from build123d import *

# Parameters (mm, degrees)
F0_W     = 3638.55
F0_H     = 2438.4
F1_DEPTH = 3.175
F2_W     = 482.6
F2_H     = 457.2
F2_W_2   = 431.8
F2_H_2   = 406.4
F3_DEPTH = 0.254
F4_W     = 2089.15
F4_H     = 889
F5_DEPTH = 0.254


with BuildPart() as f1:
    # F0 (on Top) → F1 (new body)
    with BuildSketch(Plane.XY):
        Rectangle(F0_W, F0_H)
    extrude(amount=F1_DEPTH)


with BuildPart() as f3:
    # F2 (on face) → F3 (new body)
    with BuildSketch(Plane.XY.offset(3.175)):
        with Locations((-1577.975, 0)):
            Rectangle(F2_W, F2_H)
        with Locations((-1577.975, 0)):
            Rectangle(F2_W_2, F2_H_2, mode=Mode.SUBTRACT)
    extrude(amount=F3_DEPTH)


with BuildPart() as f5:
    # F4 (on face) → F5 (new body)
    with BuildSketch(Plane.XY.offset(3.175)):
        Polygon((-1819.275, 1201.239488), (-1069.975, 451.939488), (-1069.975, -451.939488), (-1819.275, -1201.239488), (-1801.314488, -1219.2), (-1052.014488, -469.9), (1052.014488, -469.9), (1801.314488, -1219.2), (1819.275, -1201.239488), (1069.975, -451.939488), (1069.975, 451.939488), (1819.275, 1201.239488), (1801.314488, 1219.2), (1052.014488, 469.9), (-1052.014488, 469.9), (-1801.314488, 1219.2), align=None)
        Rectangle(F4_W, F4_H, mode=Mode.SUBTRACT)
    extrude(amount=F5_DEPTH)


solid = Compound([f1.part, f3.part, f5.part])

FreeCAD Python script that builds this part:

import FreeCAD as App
import Part
import Sketcher
from FreeCAD import Vector
Q = App.Units.Quantity

doc = App.newDocument("Part")
params = doc.addObject("Spreadsheet::Sheet", "Params")
for row, (alias, value) in enumerate([
    ("sketch1_height", "96 in"),
    ("sketch1_width", "143.25 in"),
    ("pad1_length", "0.125 in"),
    ("sketch2_width", "19 in"),
    ("sketch2_width2", "17 in"),
    ("sketch2_height", "18 in"),
    ("sketch2_height2", "16 in"),
    ("pad2_length", "0.01 in"),
    ("sketch3_height", "35 in"),
    ("sketch3_length", "1 in"),
    ("sketch3_width", "82.25 in"),
    ("pad3_length", "0.01 in"),
], start=1):
    params.set(f"A{row}", alias)
    params.set(f"B{row}", "=" + value)
    params.setAlias(f"B{row}", alias)

body = doc.addObject("PartDesign::Body", "Body")

# Sketch on XY plane
sketch1 = doc.addObject("Sketcher::SketchObject", "Sketch")
body.addObject(sketch1)
sketch1.AttachmentSupport = (doc.XY_Plane, [""])
sketch1.MapMode = "FlatFace"
sketch1.addGeometry(Part.LineSegment(Vector(-1819.275, 1219.2, 0), Vector(-1819.275, -1219.2, 0)), False)
sketch1.addGeometry(Part.LineSegment(Vector(-1819.275, -1219.2, 0), Vector(1819.275, -1219.2, 0)), False)
sketch1.addGeometry(Part.LineSegment(Vector(1819.275, -1219.2, 0), Vector(1819.275, 1219.2, 0)), False)
sketch1.addGeometry(Part.LineSegment(Vector(1819.275, 1219.2, 0), Vector(-1819.275, 1219.2, 0)), False)
sketch1.addConstraint(Sketcher.Constraint("Coincident", 0, 2, 1, 1))
sketch1.addConstraint(Sketcher.Constraint("Coincident", 1, 2, 2, 1))
sketch1.addConstraint(Sketcher.Constraint("Coincident", 2, 2, 3, 1))
sketch1.addConstraint(Sketcher.Constraint("Coincident", 3, 2, 0, 1))
sketch1.addConstraint(Sketcher.Constraint("Vertical", 0))
sketch1.addConstraint(Sketcher.Constraint("Horizontal", 1))
sketch1.addConstraint(Sketcher.Constraint("Vertical", 2))
sketch1.addConstraint(Sketcher.Constraint("Horizontal", 3))
sketch1.addConstraint(Sketcher.Constraint("Symmetric", 0, 2, 2, 2, -1, 1))
sketch1.addConstraint(Sketcher.Constraint("DistanceY", 0, 2, 0, 1, Q("96 in")))
sketch1.addConstraint(Sketcher.Constraint("DistanceX", 1, 1, 1, 2, Q("143.25 in")))
sketch1.setExpression("Constraints[9]", "Params.sketch1_height")
sketch1.setExpression("Constraints[10]", "Params.sketch1_width")
pad1 = doc.addObject("PartDesign::Pad", "Pad")
body.addObject(pad1)
pad1.Profile = sketch1
pad1.setExpression("Length", "Params.pad1_length")
body2 = doc.addObject("PartDesign::Body", "Body001")

# Sketch on XY plane
sketch2 = doc.addObject("Sketcher::SketchObject", "Sketch001")
body2.addObject(sketch2)
sketch2.AttachmentSupport = (doc.getObject("XY_Plane001"), [""])
sketch2.MapMode = "FlatFace"
sketch2.AttachmentOffset = App.Placement(Vector(0, 0, 0.125 * 25.4), App.Rotation())
sketch2.addGeometry(Part.LineSegment(Vector(-1819.275, 228.6, 0), Vector(-1819.275, -228.6, 0)), False)
sketch2.addGeometry(Part.LineSegment(Vector(-1819.275, -228.6, 0), Vector(-1336.675, -228.6, 0)), False)
sketch2.addGeometry(Part.LineSegment(Vector(-1336.675, -228.6, 0), Vector(-1336.675, 228.6, 0)), False)
sketch2.addGeometry(Part.LineSegment(Vector(-1336.675, 228.6, 0), Vector(-1819.275, 228.6, 0)), False)
sketch2.addGeometry(Part.LineSegment(Vector(-1362.075, -203.2, 0), Vector(-1793.875, -203.2, 0)), False)
sketch2.addGeometry(Part.LineSegment(Vector(-1793.875, -203.2, 0), Vector(-1793.875, 203.2, 0)), False)
sketch2.addGeometry(Part.LineSegment(Vector(-1793.875, 203.2, 0), Vector(-1362.075, 203.2, 0)), False)
sketch2.addGeometry(Part.LineSegment(Vector(-1362.075, 203.2, 0), Vector(-1362.075, -203.2, 0)), False)
sketch2.addConstraint(Sketcher.Constraint("Coincident", 0, 2, 1, 1))
sketch2.addConstraint(Sketcher.Constraint("Coincident", 1, 2, 2, 1))
sketch2.addConstraint(Sketcher.Constraint("Coincident", 2, 2, 3, 1))
sketch2.addConstraint(Sketcher.Constraint("Coincident", 3, 2, 0, 1))
sketch2.addConstraint(Sketcher.Constraint("Coincident", 4, 2, 5, 1))
sketch2.addConstraint(Sketcher.Constraint("Coincident", 5, 2, 6, 1))
sketch2.addConstraint(Sketcher.Constraint("Coincident", 6, 2, 7, 1))
sketch2.addConstraint(Sketcher.Constraint("Coincident", 7, 2, 4, 1))
sketch2.addConstraint(Sketcher.Constraint("Vertical", 0))
sketch2.addConstraint(Sketcher.Constraint("Horizontal", 1))
sketch2.addConstraint(Sketcher.Constraint("Vertical", 2))
sketch2.addConstraint(Sketcher.Constraint("Horizontal", 3))
sketch2.addConstraint(Sketcher.Constraint("Horizontal", 4))
sketch2.addConstraint(Sketcher.Constraint("Vertical", 5))
sketch2.addConstraint(Sketcher.Constraint("Horizontal", 6))
sketch2.addConstraint(Sketcher.Constraint("Vertical", 7))
sketch2.addConstraint(Sketcher.Constraint("DistanceX", 1, 1, 1, 2, Q("19 in")))
sketch2.addConstraint(Sketcher.Constraint("DistanceX", 4, 2, 4, 1, Q("17 in")))
sketch2.addConstraint(Sketcher.Constraint("DistanceY", 0, 2, 0, 1, Q("18 in")))
sketch2.addConstraint(Sketcher.Constraint("DistanceY", 5, 1, 5, 2, Q("16 in")))
sketch2.addConstraint(Sketcher.Constraint("DistanceY", 0, 2, -1, 1, Q("9 in")))
sketch2.addConstraint(Sketcher.Constraint("DistanceY", 4, 2, -1, 1, Q("8 in")))
sketch2.addConstraint(Sketcher.Constraint("DistanceX", 0, 2, 4, 2, Q("1 in")))
sketch2.addConstraint(Sketcher.Constraint("DistanceX", 0, 2, -1, 1, Q("71.625 in")))
sketch2.setExpression("Constraints[16]", "Params.sketch2_width")
sketch2.setExpression("Constraints[17]", "Params.sketch2_width2")
sketch2.setExpression("Constraints[18]", "Params.sketch2_height")
sketch2.setExpression("Constraints[19]", "Params.sketch2_height2")
pad2 = doc.addObject("PartDesign::Pad", "Pad001")
body2.addObject(pad2)
pad2.Profile = sketch2
pad2.setExpression("Length", "Params.pad2_length")
body3 = doc.addObject("PartDesign::Body", "Body002")

# Sketch on XY plane
sketch3 = doc.addObject("Sketcher::SketchObject", "Sketch002")
body3.addObject(sketch3)
sketch3.AttachmentSupport = (doc.getObject("XY_Plane002"), [""])
sketch3.MapMode = "FlatFace"
sketch3.AttachmentOffset = App.Placement(Vector(0, 0, 0.125 * 25.4), App.Rotation())
sketch3.addGeometry(Part.LineSegment(Vector(-1819.275, 1201.239488, 0), Vector(-1069.975, 451.939488, 0)), False)
sketch3.addGeometry(Part.LineSegment(Vector(-1069.975, 451.939488, 0), Vector(-1069.975, -451.939488, 0)), False)
sketch3.addGeometry(Part.LineSegment(Vector(-1069.975, -451.939488, 0), Vector(-1819.275, -1201.239488, 0)), False)
sketch3.addGeometry(Part.LineSegment(Vector(-1819.275, -1201.239488, 0), Vector(-1801.314488, -1219.2, 0)), False)
sketch3.addGeometry(Part.LineSegment(Vector(-1801.314488, -1219.2, 0), Vector(-1052.014488, -469.9, 0)), False)
sketch3.addGeometry(Part.LineSegment(Vector(-1052.014488, -469.9, 0), Vector(1052.014488, -469.9, 0)), False)
sketch3.addGeometry(Part.LineSegment(Vector(1052.014488, -469.9, 0), Vector(1801.314488, -1219.2, 0)), False)
sketch3.addGeometry(Part.LineSegment(Vector(1801.314488, -1219.2, 0), Vector(1819.275, -1201.239488, 0)), False)
sketch3.addGeometry(Part.LineSegment(Vector(1819.275, -1201.239488, 0), Vector(1069.975, -451.939488, 0)), False)
sketch3.addGeometry(Part.LineSegment(Vector(1069.975, -451.939488, 0), Vector(1069.975, 451.939488, 0)), False)
sketch3.addGeometry(Part.LineSegment(Vector(1069.975, 451.939488, 0), Vector(1819.275, 1201.239488, 0)), False)
sketch3.addGeometry(Part.LineSegment(Vector(1819.275, 1201.239488, 0), Vector(1801.314488, 1219.2, 0)), False)
sketch3.addGeometry(Part.LineSegment(Vector(1801.314488, 1219.2, 0), Vector(1052.014488, 469.9, 0)), False)
sketch3.addGeometry(Part.LineSegment(Vector(1052.014488, 469.9, 0), Vector(-1052.014488, 469.9, 0)), False)
sketch3.addGeometry(Part.LineSegment(Vector(-1052.014488, 469.9, 0), Vector(-1801.314488, 1219.2, 0)), False)
sketch3.addGeometry(Part.LineSegment(Vector(-1801.314488, 1219.2, 0), Vector(-1819.275, 1201.239488, 0)), False)
sketch3.addGeometry(Part.LineSegment(Vector(1044.575, -444.5, 0), Vector(-1044.575, -444.5, 0)), False)
sketch3.addGeometry(Part.LineSegment(Vector(-1044.575, -444.5, 0), Vector(-1044.575, 444.5, 0)), False)
sketch3.addGeometry(Part.LineSegment(Vector(-1044.575, 444.5, 0), Vector(1044.575, 444.5, 0)), False)
sketch3.addGeometry(Part.LineSegment(Vector(1044.575, 444.5, 0), Vector(1044.575, -444.5, 0)), False)
sketch3.addConstraint(Sketcher.Constraint("Coincident", 0, 2, 1, 1))
sketch3.addConstraint(Sketcher.Constraint("Coincident", 1, 2, 2, 1))
sketch3.addConstraint(Sketcher.Constraint("Coincident", 2, 2, 3, 1))
sketch3.addConstraint(Sketcher.Constraint("Coincident", 3, 2, 4, 1))
sketch3.addConstraint(Sketcher.Constraint("Coincident", 4, 2, 5, 1))
sketch3.addConstraint(Sketcher.Constraint("Coincident", 5, 2, 6, 1))
sketch3.addConstraint(Sketcher.Constraint("Coincident", 6, 2, 7, 1))
sketch3.addConstraint(Sketcher.Constraint("Coincident", 7, 2, 8, 1))
sketch3.addConstraint(Sketcher.Constraint("Coincident", 8, 2, 9, 1))
sketch3.addConstraint(Sketcher.Constraint("Coincident", 9, 2, 10, 1))
sketch3.addConstraint(Sketcher.Constraint("Coincident", 10, 2, 11, 1))
sketch3.addConstraint(Sketcher.Constraint("Coincident", 11, 2, 12, 1))
sketch3.addConstraint(Sketcher.Constraint("Coincident", 12, 2, 13, 1))
sketch3.addConstraint(Sketcher.Constraint("Coincident", 13, 2, 14, 1))
sketch3.addConstraint(Sketcher.Constraint("Coincident", 14, 2, 15, 1))
sketch3.addConstraint(Sketcher.Constraint("Coincident", 15, 2, 0, 1))
sketch3.addConstraint(Sketcher.Constraint("Coincident", 16, 2, 17, 1))
sketch3.addConstraint(Sketcher.Constraint("Coincident", 17, 2, 18, 1))
sketch3.addConstraint(Sketcher.Constraint("Coincident", 18, 2, 19, 1))
sketch3.addConstraint(Sketcher.Constraint("Coincident", 19, 2, 16, 1))
sketch3.addConstraint(Sketcher.Constraint("Vertical", 1))
sketch3.addConstraint(Sketcher.Constraint("Horizontal", 5))
sketch3.addConstraint(Sketcher.Constraint("Vertical", 9))
sketch3.addConstraint(Sketcher.Constraint("Horizontal", 13))
sketch3.addConstraint(Sketcher.Constraint("Horizontal", 16))
sketch3.addConstraint(Sketcher.Constraint("Vertical", 17))
sketch3.addConstraint(Sketcher.Constraint("Horizontal", 18))
sketch3.addConstraint(Sketcher.Constraint("Vertical", 19))
sketch3.addConstraint(Sketcher.Constraint("Symmetric", 0, 2, 8, 2, -1, 1))
sketch3.addConstraint(Sketcher.Constraint("Symmetric", 2, 2, 10, 2, -1, 1))
sketch3.addConstraint(Sketcher.Constraint("Symmetric", 3, 2, 11, 2, -1, 1))
sketch3.addConstraint(Sketcher.Constraint("Symmetric", 4, 2, 12, 2, -1, 1))
sketch3.addConstraint(Sketcher.Constraint("Symmetric", 6, 2, 14, 2, -1, 1))
sketch3.addConstraint(Sketcher.Constraint("Symmetric", 7, 2, 15, 2, -1, 1))
sketch3.addConstraint(Sketcher.Constraint("Symmetric", 16, 2, 18, 2, -1, 1))
sketch3.addConstraint(Sketcher.Constraint("Symmetric", 3, 2, 6, 2, -2))
sketch3.addConstraint(Sketcher.Constraint("Symmetric", 2, 2, 7, 2, -2))
sketch3.addConstraint(Sketcher.Constraint("Perpendicular", 0, 2))
sketch3.addConstraint(Sketcher.Constraint("Perpendicular", 2, 3))
sketch3.addConstraint(Sketcher.Constraint("Perpendicular", 3, 4))
sketch3.addConstraint(Sketcher.Constraint("Perpendicular", 4, 6))
sketch3.addConstraint(Sketcher.Constraint("Perpendicular", 6, 7))
sketch3.addConstraint(Sketcher.Constraint("Perpendicular", 8, 10))
sketch3.addConstraint(Sketcher.Constraint("Perpendicular", 12, 14))
sketch3.addConstraint(Sketcher.Constraint("Equal", 2, 4))
sketch3.addConstraint(Sketcher.Constraint("DistanceY", 17, 1, 17, 2, Q("35 in")))
sketch3.addConstraint(Sketcher.Constraint("Distance", 3, Q("1 in")))
sketch3.addConstraint(Sketcher.Constraint("DistanceY", 3, 2, -1, 1, Q("48 in")))
sketch3.addConstraint(Sketcher.Constraint("DistanceY", 5, 2, 12, 2, Q("37 in")))
sketch3.addConstraint(Sketcher.Constraint("DistanceX", 1, 2, 16, 2, Q("1 in")))
sketch3.addConstraint(Sketcher.Constraint("DistanceX", 16, 2, 16, 1, Q("82.25 in")))
sketch3.setExpression("Constraints[45]", "Params.sketch3_height")
sketch3.setExpression("Constraints[46]", "Params.sketch3_length")
sketch3.setExpression("Constraints[50]", "Params.sketch3_width")
pad3 = doc.addObject("PartDesign::Pad", "Pad002")
body3.addObject(pad3)
pad3.Profile = sketch3
pad3.setExpression("Length", "Params.pad3_length")

doc.recompute()
